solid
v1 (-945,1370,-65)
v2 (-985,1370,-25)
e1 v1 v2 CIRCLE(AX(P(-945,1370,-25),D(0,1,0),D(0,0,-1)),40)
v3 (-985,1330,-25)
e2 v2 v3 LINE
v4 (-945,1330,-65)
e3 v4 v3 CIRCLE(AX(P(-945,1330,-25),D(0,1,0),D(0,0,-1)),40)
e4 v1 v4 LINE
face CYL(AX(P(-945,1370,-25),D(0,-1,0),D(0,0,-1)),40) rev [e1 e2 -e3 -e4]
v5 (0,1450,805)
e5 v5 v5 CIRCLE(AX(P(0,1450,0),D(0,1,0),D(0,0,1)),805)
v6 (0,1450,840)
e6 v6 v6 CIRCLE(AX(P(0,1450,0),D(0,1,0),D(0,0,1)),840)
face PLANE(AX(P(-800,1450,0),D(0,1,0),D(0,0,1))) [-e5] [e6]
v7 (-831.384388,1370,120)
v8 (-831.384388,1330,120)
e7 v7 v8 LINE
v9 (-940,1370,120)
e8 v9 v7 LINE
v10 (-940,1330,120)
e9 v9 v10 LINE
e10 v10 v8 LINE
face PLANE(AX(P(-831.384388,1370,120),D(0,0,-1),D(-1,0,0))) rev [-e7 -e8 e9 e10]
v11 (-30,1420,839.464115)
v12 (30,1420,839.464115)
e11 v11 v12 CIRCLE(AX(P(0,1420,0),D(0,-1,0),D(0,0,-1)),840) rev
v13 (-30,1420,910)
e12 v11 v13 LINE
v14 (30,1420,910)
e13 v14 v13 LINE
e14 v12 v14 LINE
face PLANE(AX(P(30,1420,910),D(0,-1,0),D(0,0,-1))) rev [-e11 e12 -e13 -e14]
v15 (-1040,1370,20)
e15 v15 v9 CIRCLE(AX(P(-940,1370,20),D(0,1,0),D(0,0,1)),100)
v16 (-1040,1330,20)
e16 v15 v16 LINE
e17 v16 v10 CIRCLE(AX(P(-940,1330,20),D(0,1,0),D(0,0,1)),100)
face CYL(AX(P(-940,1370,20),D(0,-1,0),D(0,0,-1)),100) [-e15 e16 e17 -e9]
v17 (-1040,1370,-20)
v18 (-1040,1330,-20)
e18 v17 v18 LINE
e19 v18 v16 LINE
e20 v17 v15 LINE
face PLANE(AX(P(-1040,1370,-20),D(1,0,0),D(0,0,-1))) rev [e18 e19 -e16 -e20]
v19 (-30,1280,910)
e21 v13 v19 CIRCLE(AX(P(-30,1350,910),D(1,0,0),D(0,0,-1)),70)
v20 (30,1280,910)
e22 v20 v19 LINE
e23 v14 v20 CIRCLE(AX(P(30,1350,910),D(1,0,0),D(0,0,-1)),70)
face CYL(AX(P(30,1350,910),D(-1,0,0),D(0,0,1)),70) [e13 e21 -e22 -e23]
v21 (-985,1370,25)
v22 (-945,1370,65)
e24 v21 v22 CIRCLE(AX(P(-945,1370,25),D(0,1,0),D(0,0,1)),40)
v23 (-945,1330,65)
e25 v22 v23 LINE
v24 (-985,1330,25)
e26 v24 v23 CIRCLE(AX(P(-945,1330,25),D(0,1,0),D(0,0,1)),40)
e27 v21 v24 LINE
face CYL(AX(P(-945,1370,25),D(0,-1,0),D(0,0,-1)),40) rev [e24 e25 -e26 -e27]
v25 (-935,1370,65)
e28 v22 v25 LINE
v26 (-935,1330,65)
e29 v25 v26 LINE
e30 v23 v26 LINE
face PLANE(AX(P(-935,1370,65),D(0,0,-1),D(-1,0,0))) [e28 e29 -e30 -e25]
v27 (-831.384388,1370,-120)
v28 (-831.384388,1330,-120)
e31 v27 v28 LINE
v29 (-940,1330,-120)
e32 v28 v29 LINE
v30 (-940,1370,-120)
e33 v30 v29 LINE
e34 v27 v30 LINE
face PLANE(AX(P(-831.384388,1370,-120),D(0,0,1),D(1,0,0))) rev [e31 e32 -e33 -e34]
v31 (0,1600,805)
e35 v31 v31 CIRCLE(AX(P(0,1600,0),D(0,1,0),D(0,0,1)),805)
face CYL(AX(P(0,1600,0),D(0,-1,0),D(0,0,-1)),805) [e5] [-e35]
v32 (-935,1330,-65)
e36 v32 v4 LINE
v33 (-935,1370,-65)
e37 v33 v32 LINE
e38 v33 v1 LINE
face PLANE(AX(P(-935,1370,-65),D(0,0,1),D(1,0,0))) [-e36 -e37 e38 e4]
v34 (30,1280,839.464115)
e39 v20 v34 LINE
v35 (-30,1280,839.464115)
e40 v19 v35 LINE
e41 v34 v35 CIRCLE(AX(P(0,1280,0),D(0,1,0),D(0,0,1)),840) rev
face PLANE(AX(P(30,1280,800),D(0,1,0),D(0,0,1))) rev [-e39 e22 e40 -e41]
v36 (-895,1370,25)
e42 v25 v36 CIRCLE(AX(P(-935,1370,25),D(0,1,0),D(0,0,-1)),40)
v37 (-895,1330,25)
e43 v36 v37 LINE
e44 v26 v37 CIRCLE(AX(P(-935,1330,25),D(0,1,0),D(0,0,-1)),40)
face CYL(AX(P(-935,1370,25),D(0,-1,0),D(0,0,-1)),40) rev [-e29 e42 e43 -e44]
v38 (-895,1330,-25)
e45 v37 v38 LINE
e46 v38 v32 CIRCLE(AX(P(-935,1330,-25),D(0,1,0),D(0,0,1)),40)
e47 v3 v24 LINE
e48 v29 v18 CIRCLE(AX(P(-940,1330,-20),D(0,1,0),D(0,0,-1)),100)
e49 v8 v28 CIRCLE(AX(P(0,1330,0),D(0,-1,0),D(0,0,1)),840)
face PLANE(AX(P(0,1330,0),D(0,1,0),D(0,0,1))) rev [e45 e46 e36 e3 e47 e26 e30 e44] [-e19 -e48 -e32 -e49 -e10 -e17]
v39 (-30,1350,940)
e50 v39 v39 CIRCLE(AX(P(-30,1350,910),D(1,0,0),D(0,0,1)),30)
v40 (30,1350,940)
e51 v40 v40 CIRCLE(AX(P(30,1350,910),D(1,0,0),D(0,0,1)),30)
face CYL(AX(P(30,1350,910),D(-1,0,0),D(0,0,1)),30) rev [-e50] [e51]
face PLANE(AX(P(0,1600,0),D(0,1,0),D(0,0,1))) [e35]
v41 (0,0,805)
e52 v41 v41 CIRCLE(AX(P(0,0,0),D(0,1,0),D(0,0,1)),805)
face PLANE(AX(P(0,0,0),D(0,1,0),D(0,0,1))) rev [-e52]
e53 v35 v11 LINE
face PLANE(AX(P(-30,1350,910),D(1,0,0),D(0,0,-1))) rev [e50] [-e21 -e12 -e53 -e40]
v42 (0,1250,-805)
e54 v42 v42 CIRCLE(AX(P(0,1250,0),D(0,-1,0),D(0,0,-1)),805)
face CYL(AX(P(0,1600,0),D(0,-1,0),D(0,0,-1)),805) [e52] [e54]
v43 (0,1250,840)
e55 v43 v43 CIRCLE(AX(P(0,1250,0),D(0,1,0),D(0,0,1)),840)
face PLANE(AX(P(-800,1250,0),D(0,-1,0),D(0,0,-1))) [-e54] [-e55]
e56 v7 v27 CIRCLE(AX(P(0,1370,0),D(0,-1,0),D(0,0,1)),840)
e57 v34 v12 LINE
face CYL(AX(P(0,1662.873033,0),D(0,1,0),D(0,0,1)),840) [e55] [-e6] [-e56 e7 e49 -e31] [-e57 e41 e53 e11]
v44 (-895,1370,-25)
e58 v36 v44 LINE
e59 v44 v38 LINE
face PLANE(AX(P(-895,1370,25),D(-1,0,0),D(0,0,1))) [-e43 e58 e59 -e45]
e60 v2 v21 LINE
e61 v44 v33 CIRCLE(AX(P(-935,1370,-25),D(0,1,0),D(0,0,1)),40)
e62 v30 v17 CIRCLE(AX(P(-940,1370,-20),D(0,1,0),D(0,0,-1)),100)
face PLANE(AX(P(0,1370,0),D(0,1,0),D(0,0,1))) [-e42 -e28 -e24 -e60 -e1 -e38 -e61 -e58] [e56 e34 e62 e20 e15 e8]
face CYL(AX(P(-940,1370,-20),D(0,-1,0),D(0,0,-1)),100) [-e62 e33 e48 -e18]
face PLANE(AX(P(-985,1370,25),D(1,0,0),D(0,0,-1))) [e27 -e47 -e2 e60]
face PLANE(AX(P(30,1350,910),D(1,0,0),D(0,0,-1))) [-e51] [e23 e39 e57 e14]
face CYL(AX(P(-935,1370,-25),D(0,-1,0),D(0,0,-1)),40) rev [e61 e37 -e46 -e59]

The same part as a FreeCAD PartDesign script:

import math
import FreeCAD as App
import Part
import Sketcher

V = App.Vector
Q = App.Units.Quantity

doc = App.newDocument("Part")
body = doc.addObject("PartDesign::Body", "Body")

# Sketch on XY plane
sketch1 = doc.addObject("Sketcher::SketchObject", "Sketch")
body.addObject(sketch1)
sketch1.AttachmentSupport = (doc.XY_Plane, [""])
sketch1.MapMode = "FlatFace"
sketch1.addGeometry([
    Part.LineSegment(V(-840, 1450, 0), V(-840, 1250, 0)),
    Part.LineSegment(V(-840, 1250, 0), V(-800, 1250, 0)),
    Part.LineSegment(V(-800, 1250, 0), V(-800, 1450, 0)),
    Part.LineSegment(V(-800, 1450, 0), V(-840, 1450, 0)),
], False)
sketch1.addConstraint([
    Sketcher.Constraint("Coincident", 0, 2, 1, 1),
    Sketcher.Constraint("Coincident", 1, 2, 2, 1),
    Sketcher.Constraint("Coincident", 2, 2, 3, 1),
    Sketcher.Constraint("Coincident", 3, 2, 0, 1),
    Sketcher.Constraint("Vertical", 0),
    Sketcher.Constraint("Horizontal", 1),
    Sketcher.Constraint("Vertical", 2),
    Sketcher.Constraint("Horizontal", 3),
    Sketcher.Constraint("DistanceX", 1, 1, 1, 2, Q("40 mm")),
    Sketcher.Constraint("DistanceY", 0, 2, 0, 1, Q("200 mm")),
    Sketcher.Constraint("DistanceX", 0, 2, -1, 1, Q("840 mm")),
    Sketcher.Constraint("DistanceY", -1, 1, 0, 2, Q("1250 mm")),
])
revolution = doc.addObject("PartDesign::Revolution", "Revolution")
body.addObject(revolution)
revolution.Profile = sketch1
revolution.ReferenceAxis = (sketch1, ["V_Axis"])
revolution.Angle = 360

# Sketch on YZ plane
sketch2 = doc.addObject("Sketcher::SketchObject", "Sketch001")
body.addObject(sketch2)
sketch2.AttachmentSupport = (doc.YZ_Plane, [""])
sketch2.MapMode = "FlatFace"
sketch2.addGeometry([
    Part.LineSegment(V(1280, 910, 0), V(1280, 800, 0)),  # 0
    Part.LineSegment(V(1280, 800, 0), V(1420, 800, 0)),  # 1
    Part.LineSegment(V(1420, 800, 0), V(1420, 910, 0)),  # 2
    Part.ArcOfCircle(Part.Circle(V(1350, 910, 0), V(0, 0, 1), 70), math.radians(0), math.radians(180)),  # 3
    Part.Circle(V(1350, 910, 0), V(0, 0, 1), 30),  # 4
], False)
sketch2.addConstraint([
    Sketcher.Constraint("Coincident", 0, 2, 1, 1),
    Sketcher.Constraint("Coincident", 1, 2, 2, 1),
    Sketcher.Constraint("Tangent", 2, 2, 3, 1),
    Sketcher.Constraint("Tangent", 3, 2, 0, 1),
    Sketcher.Constraint("Vertical", 0),
    Sketcher.Constraint("Horizontal", 1),
    Sketcher.Constraint("Vertical", 2),
    Sketcher.Constraint("Coincident", 4, 3, 3, 3),
    Sketcher.Constraint("Diameter", 4, Q("60 mm")),
    Sketcher.Constraint("Radius", 3, Q("70 mm")),
    Sketcher.Constraint("DistanceY", 0, 2, 0, 1, Q("110 mm")),
    Sketcher.Constraint("DistanceX", -1, 1, 3, 3, Q("1350 mm")),
    Sketcher.Constraint("DistanceY", -1, 1, 3, 3, Q("910 mm")),
])
pad1 = doc.addObject("PartDesign::Pad", "Pad")
body.addObject(pad1)
pad1.Profile = sketch2
pad1.Length = 60
pad1.Midplane = True

# Sketch on XZ plane
sketch3 = doc.addObject("Sketcher::SketchObject", "Sketch002")
body.addObject(sketch3)
sketch3.AttachmentSupport = (doc.XZ_Plane, [""])
sketch3.MapMode = "FlatFace"
sketch3.AttachmentOffset = App.Placement(V(0, 0, -1350), App.Rotation())
sketch3.addGeometry([
    Part.LineSegment(V(-831, -120, 0), V(-940, -120, 0)),  # 0
    Part.ArcOfCircle(Part.Circle(V(-940, -20, 0), V(0, 0, 1), 100), math.radians(180), math.radians(270)),  # 1
    Part.LineSegment(V(-1040, -20, 0), V(-1040, 20, 0)),  # 2
    Part.ArcOfCircle(Part.Circle(V(-940, 20, 0), V(0, 0, 1), 100), math.radians(90), math.radians(180)),  # 3
    Part.LineSegment(V(-940, 120, 0), V(-831, 120, 0)),  # 4
    Part.ArcOfCircle(Part.Circle(V(0, 0, 0), V(0, 0, 1), 840), math.radians(171.79), math.radians(188.21)),  # 5
    Part.LineSegment(V(-895, -25, 0), V(-895, 25, 0)),  # 6
    Part.ArcOfCircle(Part.Circle(V(-935, 25, 0), V(0, 0, 1), 40), math.radians(0), math.radians(90)),  # 7
    Part.LineSegment(V(-935, 65, 0), V(-945, 65, 0)),  # 8
    Part.ArcOfCircle(Part.Circle(V(-945, 25, 0), V(0, 0, 1), 40), math.radians(90), math.radians(180)),  # 9
    Part.LineSegment(V(-985, 25, 0), V(-985, -25, 0)),  # 10
    Part.ArcOfCircle(Part.Circle(V(-945, -25, 0), V(0, 0, 1), 40), math.radians(-180), math.radians(-90)),  # 11
    Part.LineSegment(V(-945, -65, 0), V(-935, -65, 0)),  # 12
    Part.ArcOfCircle(Part.Circle(V(-935, -25, 0), V(0, 0, 1), 40), math.radians(-90), math.radians(0)),  # 13
], False)
sketch3.addConstraint([
    Sketcher.Constraint("Tangent", 0, 2, 1, 2),
    Sketcher.Constraint("Tangent", 1, 1, 2, 1),
    Sketcher.Constraint("Tangent", 2, 2, 3, 2),
    Sketcher.Constraint("Tangent", 3, 1, 4, 1),
    Sketcher.Constraint("Coincident", 4, 2, 5, 1),
    Sketcher.Constraint("Coincident", 5, 2, 0, 1),
    Sketcher.Constraint("Tangent", 6, 2, 7, 1),
    Sketcher.Constraint("Tangent", 7, 2, 8, 1),
    Sketcher.Constraint("Tangent", 8, 2, 9, 1),
    Sketcher.Constraint("Tangent", 9, 2, 10, 1),
    Sketcher.Constraint("Tangent", 10, 2, 11, 1),
    Sketcher.Constraint("Tangent", 11, 2, 12, 1),
    Sketcher.Constraint("Tangent", 12, 2, 13, 1),
    Sketcher.Constraint("Tangent", 13, 2, 6, 1),
    Sketcher.Constraint("Horizontal", 0),
    Sketcher.Constraint("Vertical", 2),
    Sketcher.Constraint("Horizontal", 4),
    Sketcher.Constraint("Vertical", 6),
    Sketcher.Constraint("Horizontal", 8),
    Sketcher.Constraint("Vertical", 10),
    Sketcher.Constraint("Horizontal", 12),
    Sketcher.Constraint("Coincident", 5, 3, -1, 1),
    Sketcher.Constraint("Equal", 1, 3),
    Sketcher.Constraint("Equal", 7, 9),
    Sketcher.Constraint("Equal", 9, 11),
    Sketcher.Constraint("Equal", 11, 13),
    Sketcher.Constraint("Equal", 0, 4),
    Sketcher.Constraint("Radius", 1, Q("100 mm")),
    Sketcher.Constraint("Radius", 5, Q("840 mm")),
    Sketcher.Constraint("Radius", 7, Q("40 mm")),
    Sketcher.Constraint("DistanceX", 8, 2, 8, 1, Q("10 mm")),
    Sketcher.Constraint("DistanceY", 2, 1, 2, 2, Q("40 mm")),
    Sketcher.Constraint("DistanceY", 6, 1, 6, 2, Q("50 mm")),
    Sketcher.Constraint("DistanceX", 1, 3, -1, 1, Q("940 mm")),
    Sketcher.Constraint("DistanceX", 7, 3, -1, 1, Q("935 mm")),
    Sketcher.Constraint("DistanceY", -1, 1, 7, 3, Q("25 mm")),
])
pad2 = doc.addObject("PartDesign::Pad", "Pad001")
body.addObject(pad2)
pad2.Profile = sketch3
pad2.Length = 40
pad2.Midplane = True

# Sketch on XZ plane
sketch4 = doc.addObject("Sketcher::SketchObject", "Sketch003")
body.addObject(sketch4)
sketch4.AttachmentSupport = (doc.XZ_Plane, [""])
sketch4.MapMode = "FlatFace"
sketch4.AttachmentOffset = App.Placement(V(0, 0, -1600), App.Rotation())
sketch4.addGeometry(Part.Circle(V(0, 0, 0), V(0, 0, 1), 805), False)
sketch4.addConstraint([
    Sketcher.Constraint("Coincident", 0, 3, -1, 1),
    Sketcher.Constraint("Diameter", 0, Q("1610 mm")),
])

# Sketch on XZ plane
sketch5 = doc.addObject("Sketcher::SketchObject", "Sketch004")
body.addObject(sketch5)
sketch5.AttachmentSupport = (doc.XZ_Plane, [""])
sketch5.MapMode = "FlatFace"
sketch5.addGeometry(Part.Circle(V(0, 0, 0), V(0, 0, 1), 805), False)
sketch5.addConstraint([
    Sketcher.Constraint("Coincident", 0, 3, -1, 1),
    Sketcher.Constraint("Diameter", 0, Q("1610 mm")),
])

additiveloft = doc.addObject("PartDesign::AdditiveLoft", "AdditiveLoft")
body.addObject(additiveloft)
additiveloft.Profile = sketch4
additiveloft.Sections = [sketch5]

doc.recompute()
